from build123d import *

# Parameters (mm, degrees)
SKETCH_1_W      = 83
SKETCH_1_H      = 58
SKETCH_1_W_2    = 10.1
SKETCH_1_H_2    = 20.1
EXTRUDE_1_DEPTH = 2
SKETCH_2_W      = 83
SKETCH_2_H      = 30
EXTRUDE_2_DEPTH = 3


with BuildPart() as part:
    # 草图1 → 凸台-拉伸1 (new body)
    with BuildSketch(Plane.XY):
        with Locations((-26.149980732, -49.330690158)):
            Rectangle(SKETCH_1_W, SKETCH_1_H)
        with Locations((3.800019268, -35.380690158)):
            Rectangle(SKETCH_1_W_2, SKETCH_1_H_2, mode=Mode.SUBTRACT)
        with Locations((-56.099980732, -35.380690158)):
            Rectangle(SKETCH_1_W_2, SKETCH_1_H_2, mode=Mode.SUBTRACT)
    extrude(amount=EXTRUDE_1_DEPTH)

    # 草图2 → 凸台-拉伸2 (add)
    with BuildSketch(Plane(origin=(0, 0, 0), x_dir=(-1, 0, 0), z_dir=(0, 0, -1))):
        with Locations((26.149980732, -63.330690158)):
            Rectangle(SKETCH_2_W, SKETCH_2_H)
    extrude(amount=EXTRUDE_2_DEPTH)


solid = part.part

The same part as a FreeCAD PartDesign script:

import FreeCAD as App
import Part
import Sketcher

doc = App.newDocument("Part")
params = doc.addObject("Spreadsheet::Sheet", "Params")
for row, (alias, value) in enumerate([
    ("sketch1_width", "83 mm"),
    ("sketch1_height", "58 mm"),
    ("sketch1_width2", "10.1 mm"),
    ("sketch1_height2", "20.1 mm"),
    ("pad1_length", "2 mm"),
    ("sketch2_width", "83 mm"),
    ("sketch2_height", "30 mm"),
    ("pad2_length", "3 mm"),
], start=1):
    params.set(f"A{row}", alias)
    params.set(f"B{row}", "=" + value)
    params.setAlias(f"B{row}", alias)

body = doc.addObject("PartDesign::Body", "Body")

sketch1 = body.newObject("Sketcher::SketchObject", "Sketch")
sketch1.AttachmentSupport = (doc.getObject("XY_Plane"), [""])
sketch1.MapMode = "FlatFace"
sketch1.addGeometry([
    Part.LineSegment(App.Vector(-67.649981, -20.33069, 0), App.Vector(-67.649981, -78.33069, 0)),
    Part.LineSegment(App.Vector(-67.649981, -78.33069, 0), App.Vector(15.350019, -78.33069, 0)),
    Part.LineSegment(App.Vector(15.350019, -78.33069, 0), App.Vector(15.350019, -20.33069, 0)),
    Part.LineSegment(App.Vector(15.350019, -20.33069, 0), App.Vector(-67.649981, -20.33069, 0)),
    Part.LineSegment(App.Vector(-51.049981, -45.43069, 0), App.Vector(-61.149981, -45.43069, 0)),
    Part.LineSegment(App.Vector(-61.149981, -45.43069, 0), App.Vector(-61.149981, -25.33069, 0)),
    Part.LineSegment(App.Vector(-61.149981, -25.33069, 0), App.Vector(-51.049981, -25.33069, 0)),
    Part.LineSegment(App.Vector(-51.049981, -25.33069, 0), App.Vector(-51.049981, -45.43069, 0)),
    Part.LineSegment(App.Vector(8.850019, -45.43069, 0), App.Vector(-1.249981, -45.43069, 0)),
    Part.LineSegment(App.Vector(-1.249981, -45.43069, 0), App.Vector(-1.249981, -25.33069, 0)),
    Part.LineSegment(App.Vector(-1.249981, -25.33069, 0), App.Vector(8.850019, -25.33069, 0)),
    Part.LineSegment(App.Vector(8.850019, -25.33069, 0), App.Vector(8.850019, -45.43069, 0)),
], False)
sketch1.addConstraint([
    Sketcher.Constraint("Coincident", 0, 2, 1, 1),
    Sketcher.Constraint("Coincident", 1, 2, 2, 1),
    Sketcher.Constraint("Coincident", 2, 2, 3, 1),
    Sketcher.Constraint("Coincident", 3, 2, 0, 1),
    Sketcher.Constraint("Coincident", 4, 2, 5, 1),
    Sketcher.Constraint("Coincident", 5, 2, 6, 1),
    Sketcher.Constraint("Coincident", 6, 2, 7, 1),
    Sketcher.Constraint("Coincident", 7, 2, 4, 1),
    Sketcher.Constraint("Coincident", 8, 2, 9, 1),
    Sketcher.Constraint("Coincident", 9, 2, 10, 1),
    Sketcher.Constraint("Coincident", 10, 2, 11, 1),
    Sketcher.Constraint("Coincident", 11, 2, 8, 1),
    Sketcher.Constraint("Vertical", 0),
    Sketcher.Constraint("Horizontal", 1),
    Sketcher.Constraint("Vertical", 2),
    Sketcher.Constraint("Horizontal", 3),
    Sketcher.Constraint("Horizontal", 4),
    Sketcher.Constraint("Vertical", 5),
    Sketcher.Constraint("Horizontal", 6),
    Sketcher.Constraint("Vertical", 7),
    Sketcher.Constraint("Horizontal", 8),
    Sketcher.Constraint("Vertical", 9),
    Sketcher.Constraint("Horizontal", 10),
    Sketcher.Constraint("Vertical", 11),
    Sketcher.Constraint("Horizontal", 7, 2, 8, 2),
    Sketcher.Constraint("Horizontal", 6, 2, 9, 2),
    Sketcher.Constraint("Equal", 6, 8),
    Sketcher.Constraint("DistanceX", 1, 1, 1, 2, 83.0),
    Sketcher.Constraint("DistanceY", 0, 2, 0, 1, 58.0),
    Sketcher.Constraint("DistanceX", 4, 2, 4, 1, 10.1),
    Sketcher.Constraint("DistanceY", 5, 1, 5, 2, 20.1),
    Sketcher.Constraint("DistanceY", 5, 2, 3, 2, 5.0),
    Sketcher.Constraint("DistanceX", 3, 2, 4, 2, 6.5),
    Sketcher.Constraint("DistanceX", 8, 2, 2, 2, 16.6),
    Sketcher.Constraint("DistanceX", 0, 2, -1, 1, 67.649981),
    Sketcher.Constraint("DistanceY", 0, 2, -1, 1, 78.33069),
])
sketch1.setExpression("Constraints[27]", "Params.sketch1_width")
sketch1.setExpression("Constraints[28]", "Params.sketch1_height")
sketch1.setExpression("Constraints[29]", "Params.sketch1_width2")
sketch1.setExpression("Constraints[30]", "Params.sketch1_height2")
pad1 = body.newObject("PartDesign::Pad", "Pad")
pad1.Profile = sketch1
pad1.setExpression("Length", "Params.pad1_length")

sketch2 = body.newObject("Sketcher::SketchObject", "Sketch001")
sketch2.AttachmentSupport = (doc.getObject("XY_Plane"), [""])
sketch2.MapMode = "FlatFace"
sketch2.addGeometry([
    Part.LineSegment(App.Vector(15.350019, -48.33069, 0), App.Vector(15.350019, -78.33069, 0)),
    Part.LineSegment(App.Vector(15.350019, -78.33069, 0), App.Vector(-67.649981, -78.33069, 0)),
    Part.LineSegment(App.Vector(-67.649981, -78.33069, 0), App.Vector(-67.649981, -48.33069, 0)),
    Part.LineSegment(App.Vector(-67.649981, -48.33069, 0), App.Vector(15.350019, -48.33069, 0)),
], False)
sketch2.addConstraint([
    Sketcher.Constraint("Coincident", 0, 2, 1, 1),
    Sketcher.Constraint("Coincident", 1, 2, 2, 1),
    Sketcher.Constraint("Coincident", 2, 2, 3, 1),
    Sketcher.Constraint("Coincident", 3, 2, 0, 1),
    Sketcher.Constraint("Vertical", 0),
    Sketcher.Constraint("Horizontal", 1),
    Sketcher.Constraint("Vertical", 2),
    Sketcher.Constraint("Horizontal", 3),
    Sketcher.Constraint("DistanceX", 1, 2, 1, 1, 83.0),
    Sketcher.Constraint("DistanceY", 0, 2, 0, 1, 30.0),
    Sketcher.Constraint("DistanceX", -1, 1, 0, 2, 15.350019),
    Sketcher.Constraint("DistanceY", 0, 2, -1, 1, 78.33069),
])
sketch2.setExpression("Constraints[8]", "Params.sketch2_width")
sketch2.setExpression("Constraints[9]", "Params.sketch2_height")
pad2 = body.newObject("PartDesign::Pad", "Pad001")
pad2.Profile = sketch2
pad2.setExpression("Length", "Params.pad2_length")
pad2.Reversed = True

doc.recompute()
